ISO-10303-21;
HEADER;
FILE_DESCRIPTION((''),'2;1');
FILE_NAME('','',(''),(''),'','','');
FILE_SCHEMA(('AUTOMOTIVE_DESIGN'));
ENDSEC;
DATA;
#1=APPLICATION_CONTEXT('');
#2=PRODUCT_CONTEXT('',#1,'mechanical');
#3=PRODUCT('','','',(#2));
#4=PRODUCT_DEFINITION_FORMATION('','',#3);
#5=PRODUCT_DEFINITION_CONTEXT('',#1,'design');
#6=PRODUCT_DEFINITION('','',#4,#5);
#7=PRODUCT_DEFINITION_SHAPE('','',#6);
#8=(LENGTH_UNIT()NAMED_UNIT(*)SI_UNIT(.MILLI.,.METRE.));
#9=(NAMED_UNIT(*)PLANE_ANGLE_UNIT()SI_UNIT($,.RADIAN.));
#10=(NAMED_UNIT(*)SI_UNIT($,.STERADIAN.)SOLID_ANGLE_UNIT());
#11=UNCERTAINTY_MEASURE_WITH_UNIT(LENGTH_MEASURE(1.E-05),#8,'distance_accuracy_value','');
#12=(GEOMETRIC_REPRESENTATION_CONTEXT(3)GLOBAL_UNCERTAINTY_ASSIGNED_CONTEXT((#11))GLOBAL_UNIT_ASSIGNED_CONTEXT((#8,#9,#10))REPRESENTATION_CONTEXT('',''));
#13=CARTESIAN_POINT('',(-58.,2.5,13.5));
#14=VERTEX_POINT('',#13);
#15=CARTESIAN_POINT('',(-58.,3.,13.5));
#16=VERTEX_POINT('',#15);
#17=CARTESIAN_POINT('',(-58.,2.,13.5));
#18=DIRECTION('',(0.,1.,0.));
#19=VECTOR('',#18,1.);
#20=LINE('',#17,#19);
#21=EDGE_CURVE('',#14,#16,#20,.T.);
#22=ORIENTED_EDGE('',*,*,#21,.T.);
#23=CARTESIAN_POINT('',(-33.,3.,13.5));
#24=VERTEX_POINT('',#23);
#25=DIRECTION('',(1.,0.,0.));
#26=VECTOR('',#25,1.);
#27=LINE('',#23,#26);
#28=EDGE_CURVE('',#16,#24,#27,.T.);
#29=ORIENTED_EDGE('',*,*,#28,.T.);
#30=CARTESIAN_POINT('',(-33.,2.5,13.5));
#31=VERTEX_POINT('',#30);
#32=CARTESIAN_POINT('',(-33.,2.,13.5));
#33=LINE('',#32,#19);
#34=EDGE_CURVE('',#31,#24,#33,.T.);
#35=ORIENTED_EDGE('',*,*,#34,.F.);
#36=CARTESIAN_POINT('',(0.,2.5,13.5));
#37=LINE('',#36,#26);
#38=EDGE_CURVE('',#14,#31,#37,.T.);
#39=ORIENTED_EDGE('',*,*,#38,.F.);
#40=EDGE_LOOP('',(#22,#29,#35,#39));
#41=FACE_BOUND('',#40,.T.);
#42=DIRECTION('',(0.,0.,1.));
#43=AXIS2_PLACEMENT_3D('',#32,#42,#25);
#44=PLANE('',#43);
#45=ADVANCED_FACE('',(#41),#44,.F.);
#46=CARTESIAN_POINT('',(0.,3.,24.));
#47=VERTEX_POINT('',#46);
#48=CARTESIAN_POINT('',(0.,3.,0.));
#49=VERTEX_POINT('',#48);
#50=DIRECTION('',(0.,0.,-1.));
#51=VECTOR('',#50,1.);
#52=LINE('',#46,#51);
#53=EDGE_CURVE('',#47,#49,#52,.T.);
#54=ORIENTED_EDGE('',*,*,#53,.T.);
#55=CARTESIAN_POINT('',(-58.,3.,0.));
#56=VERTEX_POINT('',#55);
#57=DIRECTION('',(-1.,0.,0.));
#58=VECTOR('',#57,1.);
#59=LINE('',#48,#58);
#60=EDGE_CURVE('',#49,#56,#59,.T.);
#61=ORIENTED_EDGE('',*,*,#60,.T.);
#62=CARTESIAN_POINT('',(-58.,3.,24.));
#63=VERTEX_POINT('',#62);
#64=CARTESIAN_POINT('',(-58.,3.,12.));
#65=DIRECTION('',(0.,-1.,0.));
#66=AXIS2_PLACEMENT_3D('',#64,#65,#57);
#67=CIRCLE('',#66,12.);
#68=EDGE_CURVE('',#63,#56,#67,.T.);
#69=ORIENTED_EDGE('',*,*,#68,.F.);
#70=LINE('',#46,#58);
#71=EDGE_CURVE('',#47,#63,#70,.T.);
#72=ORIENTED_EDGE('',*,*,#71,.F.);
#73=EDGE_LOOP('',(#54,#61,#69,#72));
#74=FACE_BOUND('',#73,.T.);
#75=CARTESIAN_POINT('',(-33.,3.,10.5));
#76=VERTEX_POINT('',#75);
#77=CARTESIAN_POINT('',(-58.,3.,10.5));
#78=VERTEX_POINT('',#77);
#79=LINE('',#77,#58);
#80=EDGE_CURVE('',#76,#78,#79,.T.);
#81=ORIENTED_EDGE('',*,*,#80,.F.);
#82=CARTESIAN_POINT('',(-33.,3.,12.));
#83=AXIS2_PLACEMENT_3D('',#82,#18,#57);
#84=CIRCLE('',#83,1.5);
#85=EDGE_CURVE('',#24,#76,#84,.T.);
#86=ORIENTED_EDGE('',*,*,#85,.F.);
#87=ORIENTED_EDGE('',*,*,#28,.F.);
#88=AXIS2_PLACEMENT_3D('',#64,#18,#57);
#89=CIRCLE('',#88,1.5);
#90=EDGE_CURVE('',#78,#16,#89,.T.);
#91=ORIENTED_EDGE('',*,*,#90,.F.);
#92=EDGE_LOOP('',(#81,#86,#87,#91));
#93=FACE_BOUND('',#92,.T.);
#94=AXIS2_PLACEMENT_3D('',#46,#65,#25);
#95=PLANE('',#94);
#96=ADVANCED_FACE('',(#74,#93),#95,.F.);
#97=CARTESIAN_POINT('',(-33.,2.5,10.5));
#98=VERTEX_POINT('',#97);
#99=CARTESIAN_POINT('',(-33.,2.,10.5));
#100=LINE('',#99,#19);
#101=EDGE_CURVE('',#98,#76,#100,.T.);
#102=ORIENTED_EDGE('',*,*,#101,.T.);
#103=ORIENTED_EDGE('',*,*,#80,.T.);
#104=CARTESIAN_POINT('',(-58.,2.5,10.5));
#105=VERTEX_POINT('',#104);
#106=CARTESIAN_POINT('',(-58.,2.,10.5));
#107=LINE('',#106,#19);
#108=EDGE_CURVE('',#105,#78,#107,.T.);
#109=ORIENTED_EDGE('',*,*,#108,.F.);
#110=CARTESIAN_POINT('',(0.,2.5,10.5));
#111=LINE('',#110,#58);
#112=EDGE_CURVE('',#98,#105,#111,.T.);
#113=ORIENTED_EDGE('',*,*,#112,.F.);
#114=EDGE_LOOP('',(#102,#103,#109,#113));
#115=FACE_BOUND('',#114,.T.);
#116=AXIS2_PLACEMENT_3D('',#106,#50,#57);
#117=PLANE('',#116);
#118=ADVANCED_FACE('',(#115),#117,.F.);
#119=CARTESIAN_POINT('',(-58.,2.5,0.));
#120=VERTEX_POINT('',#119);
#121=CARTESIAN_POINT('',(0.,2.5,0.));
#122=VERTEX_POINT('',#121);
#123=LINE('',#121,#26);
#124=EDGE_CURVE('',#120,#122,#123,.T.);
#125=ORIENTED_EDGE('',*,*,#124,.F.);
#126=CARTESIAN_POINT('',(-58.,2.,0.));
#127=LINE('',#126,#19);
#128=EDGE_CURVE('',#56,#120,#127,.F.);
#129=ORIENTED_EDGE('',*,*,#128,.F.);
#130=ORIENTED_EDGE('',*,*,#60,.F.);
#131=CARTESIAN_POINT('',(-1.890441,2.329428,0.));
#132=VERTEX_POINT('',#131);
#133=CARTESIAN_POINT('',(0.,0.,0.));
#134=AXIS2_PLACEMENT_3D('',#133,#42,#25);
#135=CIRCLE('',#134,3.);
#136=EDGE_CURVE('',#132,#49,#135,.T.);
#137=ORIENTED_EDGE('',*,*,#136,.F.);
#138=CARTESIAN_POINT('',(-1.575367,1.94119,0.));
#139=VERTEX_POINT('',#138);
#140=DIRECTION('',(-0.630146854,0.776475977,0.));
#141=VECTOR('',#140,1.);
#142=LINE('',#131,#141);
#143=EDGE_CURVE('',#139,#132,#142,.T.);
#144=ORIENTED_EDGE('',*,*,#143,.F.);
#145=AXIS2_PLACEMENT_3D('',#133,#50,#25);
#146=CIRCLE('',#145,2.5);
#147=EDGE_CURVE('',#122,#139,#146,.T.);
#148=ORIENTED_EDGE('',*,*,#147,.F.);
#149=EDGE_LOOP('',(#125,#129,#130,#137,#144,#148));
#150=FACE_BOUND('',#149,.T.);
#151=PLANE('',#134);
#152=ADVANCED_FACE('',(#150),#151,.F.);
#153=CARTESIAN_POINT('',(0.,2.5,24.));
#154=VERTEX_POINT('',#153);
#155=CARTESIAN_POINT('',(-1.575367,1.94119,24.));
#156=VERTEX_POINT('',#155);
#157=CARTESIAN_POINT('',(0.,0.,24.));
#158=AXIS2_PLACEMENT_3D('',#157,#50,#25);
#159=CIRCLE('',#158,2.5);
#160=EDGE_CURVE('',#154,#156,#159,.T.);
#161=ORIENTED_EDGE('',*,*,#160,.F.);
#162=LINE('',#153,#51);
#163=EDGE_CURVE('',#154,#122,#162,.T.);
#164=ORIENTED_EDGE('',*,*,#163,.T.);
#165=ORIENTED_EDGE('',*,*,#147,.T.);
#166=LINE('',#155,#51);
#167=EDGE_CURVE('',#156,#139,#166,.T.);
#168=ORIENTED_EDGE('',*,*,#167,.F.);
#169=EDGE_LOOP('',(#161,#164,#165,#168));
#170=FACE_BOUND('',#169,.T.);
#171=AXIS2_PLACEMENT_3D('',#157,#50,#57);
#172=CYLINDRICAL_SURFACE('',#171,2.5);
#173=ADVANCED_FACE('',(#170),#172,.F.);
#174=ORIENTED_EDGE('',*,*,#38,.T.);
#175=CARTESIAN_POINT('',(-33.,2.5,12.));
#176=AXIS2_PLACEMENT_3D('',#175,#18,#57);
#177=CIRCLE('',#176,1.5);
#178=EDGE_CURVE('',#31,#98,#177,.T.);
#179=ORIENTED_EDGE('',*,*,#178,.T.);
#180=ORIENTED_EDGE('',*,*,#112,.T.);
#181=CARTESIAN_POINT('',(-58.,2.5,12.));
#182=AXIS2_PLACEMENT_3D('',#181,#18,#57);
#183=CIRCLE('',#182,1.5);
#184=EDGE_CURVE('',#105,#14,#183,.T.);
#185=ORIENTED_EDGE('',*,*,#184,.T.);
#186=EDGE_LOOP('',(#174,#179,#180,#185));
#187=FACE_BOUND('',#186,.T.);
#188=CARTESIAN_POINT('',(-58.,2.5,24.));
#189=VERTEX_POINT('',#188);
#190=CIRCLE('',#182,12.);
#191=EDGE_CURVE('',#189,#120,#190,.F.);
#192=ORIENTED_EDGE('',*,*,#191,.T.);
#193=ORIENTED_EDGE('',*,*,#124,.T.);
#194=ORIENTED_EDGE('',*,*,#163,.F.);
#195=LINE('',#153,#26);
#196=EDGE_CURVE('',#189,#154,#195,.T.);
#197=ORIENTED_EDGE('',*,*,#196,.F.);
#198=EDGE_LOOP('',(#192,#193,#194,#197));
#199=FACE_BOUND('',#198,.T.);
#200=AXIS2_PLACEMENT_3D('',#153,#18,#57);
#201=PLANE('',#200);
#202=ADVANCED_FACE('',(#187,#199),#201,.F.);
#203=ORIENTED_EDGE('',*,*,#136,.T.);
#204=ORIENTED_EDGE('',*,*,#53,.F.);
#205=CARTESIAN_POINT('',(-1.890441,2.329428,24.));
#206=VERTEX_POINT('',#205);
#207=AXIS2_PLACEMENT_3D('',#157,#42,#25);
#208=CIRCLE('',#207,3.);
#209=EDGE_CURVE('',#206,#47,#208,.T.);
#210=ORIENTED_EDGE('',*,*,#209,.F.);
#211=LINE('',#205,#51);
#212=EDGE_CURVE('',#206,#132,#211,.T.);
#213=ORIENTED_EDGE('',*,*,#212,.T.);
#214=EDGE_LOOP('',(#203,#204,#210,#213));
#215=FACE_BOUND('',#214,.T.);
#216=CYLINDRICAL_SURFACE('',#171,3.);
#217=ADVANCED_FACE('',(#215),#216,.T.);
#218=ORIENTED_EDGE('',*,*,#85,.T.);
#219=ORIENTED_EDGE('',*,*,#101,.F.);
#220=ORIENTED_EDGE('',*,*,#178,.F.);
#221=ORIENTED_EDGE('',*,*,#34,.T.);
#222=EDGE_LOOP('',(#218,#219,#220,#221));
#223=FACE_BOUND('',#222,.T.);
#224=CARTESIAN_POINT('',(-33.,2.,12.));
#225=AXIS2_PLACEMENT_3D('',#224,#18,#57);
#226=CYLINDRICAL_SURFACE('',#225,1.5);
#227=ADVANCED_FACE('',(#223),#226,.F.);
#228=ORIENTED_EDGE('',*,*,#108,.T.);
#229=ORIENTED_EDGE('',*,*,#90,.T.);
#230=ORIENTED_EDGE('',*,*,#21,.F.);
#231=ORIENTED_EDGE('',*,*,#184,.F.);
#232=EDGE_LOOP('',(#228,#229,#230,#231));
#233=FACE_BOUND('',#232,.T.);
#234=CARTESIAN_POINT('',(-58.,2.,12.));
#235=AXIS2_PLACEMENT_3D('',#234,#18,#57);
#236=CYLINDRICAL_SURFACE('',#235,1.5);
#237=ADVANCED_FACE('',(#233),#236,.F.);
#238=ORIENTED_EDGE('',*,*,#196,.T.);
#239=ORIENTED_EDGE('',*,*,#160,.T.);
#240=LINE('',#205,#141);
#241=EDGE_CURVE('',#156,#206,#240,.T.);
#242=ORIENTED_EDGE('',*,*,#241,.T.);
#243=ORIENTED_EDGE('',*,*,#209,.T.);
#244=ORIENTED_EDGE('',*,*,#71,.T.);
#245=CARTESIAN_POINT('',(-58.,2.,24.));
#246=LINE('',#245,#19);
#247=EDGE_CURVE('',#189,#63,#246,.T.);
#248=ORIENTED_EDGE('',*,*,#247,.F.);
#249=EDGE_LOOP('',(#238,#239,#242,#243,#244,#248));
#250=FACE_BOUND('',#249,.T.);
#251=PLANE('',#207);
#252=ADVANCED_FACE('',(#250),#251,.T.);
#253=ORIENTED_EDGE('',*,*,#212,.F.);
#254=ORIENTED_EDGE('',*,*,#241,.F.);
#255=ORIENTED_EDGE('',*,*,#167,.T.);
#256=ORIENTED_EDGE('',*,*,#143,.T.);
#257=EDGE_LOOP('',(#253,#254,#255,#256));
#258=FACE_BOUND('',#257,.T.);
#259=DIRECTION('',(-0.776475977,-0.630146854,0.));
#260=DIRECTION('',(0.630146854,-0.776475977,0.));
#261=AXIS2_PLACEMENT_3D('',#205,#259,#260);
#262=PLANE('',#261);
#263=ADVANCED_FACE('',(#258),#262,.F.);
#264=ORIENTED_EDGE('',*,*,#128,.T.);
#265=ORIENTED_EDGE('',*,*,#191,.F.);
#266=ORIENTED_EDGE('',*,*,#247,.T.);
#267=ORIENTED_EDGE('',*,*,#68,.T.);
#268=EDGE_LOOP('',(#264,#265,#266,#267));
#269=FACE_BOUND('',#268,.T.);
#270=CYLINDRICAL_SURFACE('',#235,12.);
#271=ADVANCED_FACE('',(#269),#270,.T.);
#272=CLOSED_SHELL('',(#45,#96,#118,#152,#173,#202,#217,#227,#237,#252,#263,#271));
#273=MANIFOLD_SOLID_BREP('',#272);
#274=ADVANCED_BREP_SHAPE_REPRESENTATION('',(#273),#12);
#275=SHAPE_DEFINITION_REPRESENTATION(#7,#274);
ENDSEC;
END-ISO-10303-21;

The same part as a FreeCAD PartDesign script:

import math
import FreeCAD as App
import Part
import Sketcher
from FreeCAD import Vector

doc = App.newDocument("Part")
params = doc.addObject("Spreadsheet::Sheet", "Params")
for row, (alias, value) in enumerate([
    ("sketch1_radius", "3 mm"),
    ("sketch1_radius2", "2.5 mm"),
    ("sketch1_width", "70 mm"),
    ("pad1_length", "24 mm"),
    ("sketch2_radius", "12 mm"),
    ("sketch2_radius2", "1.5 mm"),
    ("sketch2_width", "25 mm"),
    ("pocket1_length", "1 mm"),
], start=1):
    params.set(f"A{row}", alias)
    params.set(f"B{row}", "=" + value)
    params.setAlias(f"B{row}", alias)

body = doc.addObject("PartDesign::Body", "Body")

sketch1 = doc.addObject("Sketcher::SketchObject", "Sketch")
body.addObject(sketch1)
sketch1.AttachmentSupport = (doc.XY_Plane, [""])
sketch1.MapMode = "FlatFace"
sketch1.addGeometry([
    Part.LineSegment(Vector(0, 3, 0), Vector(-70, 3, 0)),
    Part.LineSegment(Vector(-70, 3, 0), Vector(-70, 2.5, 0)),
    Part.LineSegment(Vector(-70, 2.5, 0), Vector(0, 2.5, 0)),
    Part.ArcOfCircle(Part.Circle(Vector(0, 0, 0), Vector(0, 0, 1), 2.5), math.radians(129), math.radians(450)),
    Part.LineSegment(Vector(-1.6, 1.9, 0), Vector(-1.9, 2.3, 0)),
    Part.ArcOfCircle(Part.Circle(Vector(0, 0, 0), Vector(0, 0, 1), 3), math.radians(129), math.radians(450)),
], False)
sketch1.addConstraint([
    Sketcher.Constraint("Coincident", 0, 2, 1, 1),
    Sketcher.Constraint("Coincident", 1, 2, 2, 1),
    Sketcher.Constraint("Tangent", 2, 2, 3, 2),
    Sketcher.Constraint("Coincident", 3, 1, 4, 1),
    Sketcher.Constraint("Coincident", 4, 2, 5, 1),
    Sketcher.Constraint("Tangent", 5, 2, 0, 1),
    Sketcher.Constraint("Horizontal", 0),
    Sketcher.Constraint("Vertical", 1),
    Sketcher.Constraint("Horizontal", 2),
    Sketcher.Constraint("Coincident", 3, 3, -1, 1),
    Sketcher.Constraint("Coincident", 5, 3, -1, 1),
    Sketcher.Constraint("Radius", 5, 3.0),
    Sketcher.Constraint("Radius", 3, 2.5),
    Sketcher.Constraint("DistanceX", 0, 2, 0, 1, 70.0),
    Sketcher.Constraint("DistanceY", -1, 1, 3, 1, 1.94119),
    Sketcher.Constraint("DistanceX", 4, 2, -1, 1, 1.890441),
])
sketch1.setExpression("Constraints[11]", "Params.sketch1_radius")
sketch1.setExpression("Constraints[12]", "Params.sketch1_radius2")
sketch1.setExpression("Constraints[13]", "Params.sketch1_width")
pad1 = doc.addObject("PartDesign::Pad", "Pad")
body.addObject(pad1)
pad1.Profile = sketch1
pad1.setExpression("Length", "Params.pad1_length")

sketch2 = doc.addObject("Sketcher::SketchObject", "Sketch001")
body.addObject(sketch2)
sketch2.AttachmentSupport = (doc.XZ_Plane, [""])
sketch2.MapMode = "FlatFace"
sketch2.AttachmentOffset = App.Placement(Vector(0, 0, -3), App.Rotation())
sketch2.addGeometry([
    Part.LineSegment(Vector(-33, 10.5, 0), Vector(-58, 10.5, 0)),
    Part.ArcOfCircle(Part.Circle(Vector(-58, 12, 0), Vector(0, 0, 1), 1.5), math.radians(90), math.radians(270)),
    Part.LineSegment(Vector(-58, 13.5, 0), Vector(-33, 13.5, 0)),
    Part.ArcOfCircle(Part.Circle(Vector(-33, 12, 0), Vector(0, 0, 1), 1.5), math.radians(-90), math.radians(90)),
    Part.LineSegment(Vector(-58, 0, 0), Vector(-75.8, 0, 0)),
    Part.LineSegment(Vector(-75.8, 0, 0), Vector(-75.8, 24, 0)),
    Part.LineSegment(Vector(-75.8, 24, 0), Vector(-58, 24, 0)),
    Part.ArcOfCircle(Part.Circle(Vector(-58, 12, 0), Vector(0, 0, 1), 12), math.radians(90), math.radians(270)),
], False)
sketch2.addConstraint([
    Sketcher.Constraint("Tangent", 0, 2, 1, 2),
    Sketcher.Constraint("Tangent", 1, 1, 2, 1),
    Sketcher.Constraint("Tangent", 2, 2, 3, 2),
    Sketcher.Constraint("Tangent", 3, 1, 0, 1),
    Sketcher.Constraint("Coincident", 4, 2, 5, 1),
    Sketcher.Constraint("Coincident", 5, 2, 6, 1),
    Sketcher.Constraint("Tangent", 6, 2, 7, 1),
    Sketcher.Constraint("Tangent", 7, 2, 4, 1),
    Sketcher.Constraint("Horizontal", 0),
    Sketcher.Constraint("Horizontal", 2),
    Sketcher.Constraint("Horizontal", 4),
    Sketcher.Constraint("Vertical", 5),
    Sketcher.Constraint("Horizontal", 6),
    Sketcher.Constraint("Coincident", 7, 3, 1, 3),
    Sketcher.Constraint("PointOnObject", 4, 2, -1),
    Sketcher.Constraint("Radius", 7, 12.0),
    Sketcher.Constraint("Radius", 1, 1.5),
    Sketcher.Constraint("DistanceX", 0, 2, 0, 1, 25.0),
    Sketcher.Constraint("DistanceX", 1, 3, -1, 1, 58.0),
    Sketcher.Constraint("DistanceX", 4, 2, 4, 1, 17.765424),
])
sketch2.setExpression("Constraints[15]", "Params.sketch2_radius")
sketch2.setExpression("Constraints[16]", "Params.sketch2_radius2")
sketch2.setExpression("Constraints[17]", "Params.sketch2_width")
pocket1 = doc.addObject("PartDesign::Pocket", "Pocket")
body.addObject(pocket1)
pocket1.Profile = sketch2
pocket1.setExpression("Length", "Params.pocket1_length")
pocket1.Reversed = True

doc.recompute()
